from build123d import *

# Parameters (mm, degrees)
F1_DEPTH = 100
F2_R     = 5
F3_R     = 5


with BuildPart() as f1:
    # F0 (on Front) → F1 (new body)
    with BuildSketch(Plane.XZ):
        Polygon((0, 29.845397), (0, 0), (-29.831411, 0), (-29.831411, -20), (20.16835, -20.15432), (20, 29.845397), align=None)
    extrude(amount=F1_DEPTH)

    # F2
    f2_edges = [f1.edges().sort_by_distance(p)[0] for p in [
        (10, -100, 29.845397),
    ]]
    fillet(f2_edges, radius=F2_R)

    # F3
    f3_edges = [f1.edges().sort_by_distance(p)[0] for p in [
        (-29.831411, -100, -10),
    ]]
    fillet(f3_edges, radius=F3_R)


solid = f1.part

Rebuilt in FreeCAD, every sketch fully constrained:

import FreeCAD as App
import Part
import Sketcher

V = App.Vector


def edges_at(feature, points):
    """Names of the edges that pass closest to the given points."""
    edges = feature.Shape.Edges
    near = lambda p: min(range(len(edges)), key=lambda i: edges[i].distToShape(Part.Vertex(*p))[0])
    return sorted({f"Edge{near(p) + 1}" for p in points})


def add_polygon(sketch, points):
    """Adds a closed chain of lines whose ends are joined by coincident constraints."""
    first, n = sketch.GeometryCount, len(points)
    for a, b in zip(points, points[1:] + points[:1]):
        sketch.addGeometry(Part.LineSegment(App.Vector(*a, 0), App.Vector(*b, 0)), False)
    for i in range(n):
        sketch.addConstraint(Sketcher.Constraint("Coincident", first + i, 2, first + (i + 1) % n, 1))

doc = App.newDocument("Part")
body = doc.addObject("PartDesign::Body", "Body")

sketch1 = body.newObject("Sketcher::SketchObject", "Sketch")
sketch1.AttachmentSupport = (doc.getObject("XZ_Plane"), [""])
sketch1.MapMode = "FlatFace"
add_polygon(sketch1, [(0, 29.845397), (0, 0), (-29.831411, 0), (-29.831411, -20), (20.16835, -20.15432), (20, 29.845397)])
sketch1.addConstraint(Sketcher.Constraint("Vertical", 0))
sketch1.addConstraint(Sketcher.Constraint("Horizontal", 1))
sketch1.addConstraint(Sketcher.Constraint("Vertical", 2))
sketch1.addConstraint(Sketcher.Constraint("Horizontal", 5))
sketch1.addConstraint(Sketcher.Constraint("Coincident", 0, 2, -1, 1))
sketch1.addConstraint(Sketcher.Constraint("Equal", 5, 2))
sketch1.addConstraint(Sketcher.Constraint("Equal", 3, 4))
sketch1.addConstraint(Sketcher.Constraint("DistanceX", 5, 2, 5, 1, 20.0))
sketch1.addConstraint(Sketcher.Constraint("Distance", 3, 49.999999))
sketch1.addConstraint(Sketcher.Constraint("DistanceX", 1, 2, 1, 1, 29.831411))
sketch1.addConstraint(Sketcher.Constraint("DistanceY", 0, 2, 0, 1, 29.845397))
pad1 = body.newObject("PartDesign::Pad", "Pad")
pad1.Profile = sketch1
pad1.Length = 100
doc.recompute()

fillet = body.newObject("PartDesign::Fillet", "Fillet")
fillet.Base = (pad1, edges_at(pad1, [(10, -100, 29.845)]))
fillet.Radius = 5
doc.recompute()

fillet2 = body.newObject("PartDesign::Fillet", "Fillet001")
fillet2.Base = (fillet, edges_at(fillet, [(-29.831, -100, -10)]))
fillet2.Radius = 5

doc.recompute()
